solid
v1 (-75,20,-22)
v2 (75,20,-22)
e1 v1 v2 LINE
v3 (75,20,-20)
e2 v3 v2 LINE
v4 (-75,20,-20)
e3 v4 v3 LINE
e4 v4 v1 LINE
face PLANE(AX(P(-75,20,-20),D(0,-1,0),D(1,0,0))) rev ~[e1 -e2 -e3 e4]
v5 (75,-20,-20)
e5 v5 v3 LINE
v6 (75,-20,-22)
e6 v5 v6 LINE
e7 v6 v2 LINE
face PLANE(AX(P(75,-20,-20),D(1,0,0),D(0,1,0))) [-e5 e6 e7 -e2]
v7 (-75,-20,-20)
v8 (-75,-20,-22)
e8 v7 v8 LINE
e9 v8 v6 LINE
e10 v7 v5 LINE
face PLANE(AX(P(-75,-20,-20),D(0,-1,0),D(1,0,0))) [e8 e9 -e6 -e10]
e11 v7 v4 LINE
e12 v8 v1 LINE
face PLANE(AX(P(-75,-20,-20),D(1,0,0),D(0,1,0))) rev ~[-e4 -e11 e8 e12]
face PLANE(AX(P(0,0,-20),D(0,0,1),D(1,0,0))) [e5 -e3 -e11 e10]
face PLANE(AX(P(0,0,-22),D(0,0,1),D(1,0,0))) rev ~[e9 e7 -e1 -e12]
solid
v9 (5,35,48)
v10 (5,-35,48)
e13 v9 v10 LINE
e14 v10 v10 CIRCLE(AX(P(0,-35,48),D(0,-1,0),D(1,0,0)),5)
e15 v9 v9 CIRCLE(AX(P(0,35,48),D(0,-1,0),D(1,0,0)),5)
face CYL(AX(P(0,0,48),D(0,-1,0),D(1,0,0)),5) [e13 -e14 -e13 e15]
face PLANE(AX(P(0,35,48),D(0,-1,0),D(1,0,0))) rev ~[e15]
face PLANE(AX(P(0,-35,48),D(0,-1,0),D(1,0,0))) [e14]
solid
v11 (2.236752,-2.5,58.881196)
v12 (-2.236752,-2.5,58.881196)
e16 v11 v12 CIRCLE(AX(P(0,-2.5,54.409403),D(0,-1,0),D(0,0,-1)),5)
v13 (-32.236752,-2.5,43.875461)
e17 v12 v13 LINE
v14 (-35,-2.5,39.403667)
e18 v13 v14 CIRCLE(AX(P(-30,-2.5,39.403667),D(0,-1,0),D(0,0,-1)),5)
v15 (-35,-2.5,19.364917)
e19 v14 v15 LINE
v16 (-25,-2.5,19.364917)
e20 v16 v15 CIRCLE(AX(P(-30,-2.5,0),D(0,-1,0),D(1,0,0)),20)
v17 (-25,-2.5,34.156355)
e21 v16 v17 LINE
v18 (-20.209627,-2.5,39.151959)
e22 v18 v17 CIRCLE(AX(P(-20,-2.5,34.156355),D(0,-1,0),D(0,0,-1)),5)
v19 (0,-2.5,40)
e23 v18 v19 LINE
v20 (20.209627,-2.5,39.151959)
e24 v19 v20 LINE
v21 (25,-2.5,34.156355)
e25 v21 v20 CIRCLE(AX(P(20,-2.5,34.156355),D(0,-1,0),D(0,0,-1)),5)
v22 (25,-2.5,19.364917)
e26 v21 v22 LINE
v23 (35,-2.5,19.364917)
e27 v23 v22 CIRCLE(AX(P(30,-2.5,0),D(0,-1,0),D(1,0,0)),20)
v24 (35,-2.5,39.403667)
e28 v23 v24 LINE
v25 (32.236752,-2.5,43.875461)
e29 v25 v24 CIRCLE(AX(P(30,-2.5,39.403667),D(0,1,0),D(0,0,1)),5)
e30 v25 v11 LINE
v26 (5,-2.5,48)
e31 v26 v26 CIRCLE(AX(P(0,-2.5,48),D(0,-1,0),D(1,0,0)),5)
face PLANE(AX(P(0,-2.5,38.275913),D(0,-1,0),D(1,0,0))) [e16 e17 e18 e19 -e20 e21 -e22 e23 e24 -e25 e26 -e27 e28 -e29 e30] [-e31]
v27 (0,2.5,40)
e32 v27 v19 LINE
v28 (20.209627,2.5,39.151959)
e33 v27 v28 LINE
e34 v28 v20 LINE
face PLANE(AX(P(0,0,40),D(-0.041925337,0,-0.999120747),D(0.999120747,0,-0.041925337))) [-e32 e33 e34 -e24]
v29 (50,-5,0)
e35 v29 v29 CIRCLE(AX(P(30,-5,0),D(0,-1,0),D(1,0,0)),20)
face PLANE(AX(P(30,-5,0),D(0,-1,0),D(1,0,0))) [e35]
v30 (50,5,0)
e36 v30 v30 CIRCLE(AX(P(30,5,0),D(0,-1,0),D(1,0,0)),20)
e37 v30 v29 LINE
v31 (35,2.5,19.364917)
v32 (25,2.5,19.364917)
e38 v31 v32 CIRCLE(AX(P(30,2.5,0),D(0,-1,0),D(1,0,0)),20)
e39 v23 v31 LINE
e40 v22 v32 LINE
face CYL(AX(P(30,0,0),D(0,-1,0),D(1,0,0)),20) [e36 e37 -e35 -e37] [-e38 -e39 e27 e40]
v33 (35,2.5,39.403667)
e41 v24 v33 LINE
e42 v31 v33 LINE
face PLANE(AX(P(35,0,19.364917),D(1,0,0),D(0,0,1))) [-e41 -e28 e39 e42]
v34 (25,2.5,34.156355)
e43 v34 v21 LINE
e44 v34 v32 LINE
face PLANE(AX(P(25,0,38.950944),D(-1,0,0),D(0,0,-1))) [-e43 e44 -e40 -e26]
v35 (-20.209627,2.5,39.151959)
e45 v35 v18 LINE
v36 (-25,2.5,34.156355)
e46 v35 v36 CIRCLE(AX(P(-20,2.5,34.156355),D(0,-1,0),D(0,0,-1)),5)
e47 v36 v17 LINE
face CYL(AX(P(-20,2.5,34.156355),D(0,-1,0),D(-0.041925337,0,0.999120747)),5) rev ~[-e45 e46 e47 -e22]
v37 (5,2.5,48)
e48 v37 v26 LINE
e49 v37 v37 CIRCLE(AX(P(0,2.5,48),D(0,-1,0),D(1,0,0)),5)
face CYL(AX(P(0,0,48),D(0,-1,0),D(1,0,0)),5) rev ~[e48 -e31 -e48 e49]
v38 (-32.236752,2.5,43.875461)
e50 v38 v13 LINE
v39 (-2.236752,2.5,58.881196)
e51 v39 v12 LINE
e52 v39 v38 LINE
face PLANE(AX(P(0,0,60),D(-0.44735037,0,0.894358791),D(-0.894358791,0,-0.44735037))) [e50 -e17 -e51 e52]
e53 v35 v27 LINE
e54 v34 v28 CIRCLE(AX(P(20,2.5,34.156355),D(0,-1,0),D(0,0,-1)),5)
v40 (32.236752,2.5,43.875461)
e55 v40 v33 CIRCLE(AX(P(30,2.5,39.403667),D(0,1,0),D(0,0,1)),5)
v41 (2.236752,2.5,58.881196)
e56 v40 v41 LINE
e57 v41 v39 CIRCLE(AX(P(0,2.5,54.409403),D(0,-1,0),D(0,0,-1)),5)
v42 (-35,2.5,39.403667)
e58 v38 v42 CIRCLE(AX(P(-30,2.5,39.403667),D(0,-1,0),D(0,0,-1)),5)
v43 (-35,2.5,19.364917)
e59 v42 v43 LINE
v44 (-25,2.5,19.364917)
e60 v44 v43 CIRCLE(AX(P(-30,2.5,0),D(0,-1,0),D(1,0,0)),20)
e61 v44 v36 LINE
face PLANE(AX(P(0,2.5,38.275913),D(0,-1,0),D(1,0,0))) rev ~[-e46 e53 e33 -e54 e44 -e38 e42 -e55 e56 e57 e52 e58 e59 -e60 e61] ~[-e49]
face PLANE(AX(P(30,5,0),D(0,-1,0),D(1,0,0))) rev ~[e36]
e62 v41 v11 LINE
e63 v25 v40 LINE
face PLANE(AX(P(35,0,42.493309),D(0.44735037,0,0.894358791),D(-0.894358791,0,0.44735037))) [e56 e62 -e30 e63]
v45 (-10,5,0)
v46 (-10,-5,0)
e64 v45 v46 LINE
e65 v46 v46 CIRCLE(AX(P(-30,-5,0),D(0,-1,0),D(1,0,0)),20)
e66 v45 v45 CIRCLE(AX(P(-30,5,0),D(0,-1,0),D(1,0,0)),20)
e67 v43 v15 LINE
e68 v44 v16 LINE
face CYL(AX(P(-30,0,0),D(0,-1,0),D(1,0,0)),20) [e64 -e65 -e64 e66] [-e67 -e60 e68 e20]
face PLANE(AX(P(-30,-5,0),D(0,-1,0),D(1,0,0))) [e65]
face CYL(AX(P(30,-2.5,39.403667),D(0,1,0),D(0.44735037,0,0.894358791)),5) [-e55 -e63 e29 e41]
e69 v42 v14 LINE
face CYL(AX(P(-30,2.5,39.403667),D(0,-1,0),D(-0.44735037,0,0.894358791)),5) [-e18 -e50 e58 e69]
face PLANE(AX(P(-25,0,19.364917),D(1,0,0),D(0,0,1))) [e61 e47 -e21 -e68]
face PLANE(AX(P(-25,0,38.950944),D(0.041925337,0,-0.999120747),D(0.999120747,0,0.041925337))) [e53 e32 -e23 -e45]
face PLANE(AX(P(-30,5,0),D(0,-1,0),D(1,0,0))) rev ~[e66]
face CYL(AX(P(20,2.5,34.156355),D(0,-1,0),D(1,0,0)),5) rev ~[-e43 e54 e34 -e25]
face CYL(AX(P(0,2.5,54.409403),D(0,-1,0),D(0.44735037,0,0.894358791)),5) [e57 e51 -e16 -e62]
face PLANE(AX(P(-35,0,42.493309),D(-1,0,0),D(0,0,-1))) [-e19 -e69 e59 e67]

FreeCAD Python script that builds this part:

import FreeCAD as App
import Part
import Sketcher

V = App.Vector
Q = App.Units.Quantity


def edges_at(feature, points):
    """Names of the edges that pass closest to the given points."""
    edges = feature.Shape.Edges
    near = lambda p: min(range(len(edges)), key=lambda i: edges[i].distToShape(Part.Vertex(*p))[0])
    return sorted({f"Edge{near(p) + 1}" for p in points})

doc = App.newDocument("Part")
body = doc.addObject("PartDesign::Body", "Body")

# Sketch on XZ plane
sketch1 = body.newObject("Sketcher::SketchObject", "Sketch")
sketch1.AttachmentSupport = (doc.getObject("XZ_Plane"), [""])
sketch1.MapMode = "FlatFace"
sketch1.addGeometry(Part.Circle(V(-30, 0, 0), V(0, 0, 1), 20), False)
sketch1.addConstraint(Sketcher.Constraint("PointOnObject", 0, 3, -1))
sketch1.addConstraint(Sketcher.Constraint("Diameter", 0, Q("40 mm")))
sketch1.addConstraint(Sketcher.Constraint("DistanceX", 0, 3, -1, 1, Q("30 mm")))
pad1 = body.newObject("PartDesign::Pad", "Pad")
pad1.Profile = sketch1
pad1.Length = 10
pad1.Midplane = True
body2 = doc.addObject("PartDesign::Body", "Body001")

# Sketch on XZ plane
sketch2 = body2.newObject("Sketcher::SketchObject", "Sketch001")
sketch2.AttachmentSupport = (doc.getObject("XZ_Plane001"), [""])
sketch2.MapMode = "FlatFace"
sketch2.addGeometry(Part.Circle(V(30, 0, 0), V(0, 0, 1), 20), False)
sketch2.addConstraint(Sketcher.Constraint("PointOnObject", 0, 3, -1))
sketch2.addConstraint(Sketcher.Constraint("Diameter", 0, Q("40 mm")))
sketch2.addConstraint(Sketcher.Constraint("DistanceX", -1, 1, 0, 3, Q("30 mm")))
pad2 = body2.newObject("PartDesign::Pad", "Pad001")
pad2.Profile = sketch2
pad2.Length = 10
pad2.Midplane = True
body.AllowCompound = True
doc.recompute()

boolean = body.newObject("PartDesign::Boolean", "Boolean")
boolean.Type = "Fuse"
boolean.addObjects([body2])

# Sketch on XZ plane
sketch3 = body.newObject("Sketcher::SketchObject", "Sketch002")
sketch3.AttachmentSupport = (doc.getObject("XZ_Plane"), [""])
sketch3.MapMode = "FlatFace"
sketch3.addGeometry(Part.LineSegment(V(35, 42, 0), V(0, 60, 0)), False)
sketch3.addGeometry(Part.LineSegment(V(0, 60, 0), V(-35, 42, 0)), False)
sketch3.addGeometry(Part.LineSegment(V(-35, 42, 0), V(-35, 19, 0)), False)
sketch3.addGeometry(Part.LineSegment(V(-35, 19, 0), V(-25, 19, 0)), False)
sketch3.addGeometry(Part.LineSegment(V(-25, 19, 0), V(-25, 39, 0)), False)
sketch3.addGeometry(Part.LineSegment(V(-25, 39, 0), V(0, 40, 0)), False)
sketch3.addGeometry(Part.LineSegment(V(0, 40, 0), V(25, 39, 0)), False)
sketch3.addGeometry(Part.LineSegment(V(25, 39, 0), V(25, 19, 0)), False)
sketch3.addGeometry(Part.LineSegment(V(25, 19, 0), V(35, 19, 0)), False)
sketch3.addGeometry(Part.LineSegment(V(35, 19, 0), V(35, 42, 0)), False)
sketch3.addConstraint(Sketcher.Constraint("Coincident", 0, 2, 1, 1))
sketch3.addConstraint(Sketcher.Constraint("Coincident", 1, 2, 2, 1))
sketch3.addConstraint(Sketcher.Constraint("Coincident", 2, 2, 3, 1))
sketch3.addConstraint(Sketcher.Constraint("Coincident", 3, 2, 4, 1))
sketch3.addConstraint(Sketcher.Constraint("Coincident", 4, 2, 5, 1))
sketch3.addConstraint(Sketcher.Constraint("Coincident", 5, 2, 6, 1))
sketch3.addConstraint(Sketcher.Constraint("Coincident", 6, 2, 7, 1))
sketch3.addConstraint(Sketcher.Constraint("Coincident", 7, 2, 8, 1))
sketch3.addConstraint(Sketcher.Constraint("Coincident", 8, 2, 9, 1))
sketch3.addConstraint(Sketcher.Constraint("Coincident", 9, 2, 0, 1))
sketch3.addConstraint(Sketcher.Constraint("Vertical", 2))
sketch3.addConstraint(Sketcher.Constraint("Horizontal", 3))
sketch3.addConstraint(Sketcher.Constraint("Vertical", 4))
sketch3.addConstraint(Sketcher.Constraint("Vertical", 7))
sketch3.addConstraint(Sketcher.Constraint("Horizontal", 8))
sketch3.addConstraint(Sketcher.Constraint("Vertical", 9))
sketch3.addConstraint(Sketcher.Constraint("Symmetric", 4, 2, 6, 2, -2))
sketch3.addConstraint(Sketcher.Constraint("Symmetric", 2, 2, 8, 2, -2))
sketch3.addConstraint(Sketcher.Constraint("PointOnObject", 0, 2, -2))
sketch3.addConstraint(Sketcher.Constraint("PointOnObject", 5, 2, -2))
sketch3.addConstraint(Sketcher.Constraint("Horizontal", 1, 2, 9, 2))
sketch3.addConstraint(Sketcher.Constraint("DistanceX", 3, 1, 3, 2, Q("10 mm")))
sketch3.addConstraint(Sketcher.Constraint("DistanceY", -1, 1, 0, 2, Q("60 mm")))
sketch3.addConstraint(Sketcher.Constraint("DistanceX", 1, 2, -1, 1, Q("35 mm")))
sketch3.addConstraint(Sketcher.Constraint("DistanceY", -1, 1, 5, 2, Q("40 mm")))
sketch3.addConstraint(Sketcher.Constraint("Distance", 5, Q("25.022001 mm")))
sketch3.addConstraint(Sketcher.Constraint("DistanceY", 2, 2, 2, 1, Q("23.128392 mm")))
sketch3.addConstraint(Sketcher.Constraint("DistanceY", 4, 1, 4, 2, Q("19.586027 mm")))
pad3 = body.newObject("PartDesign::Pad", "Pad002")
pad3.Profile = sketch3
pad3.Length = 5
pad3.Midplane = True
doc.recompute()

fillet = body.newObject("PartDesign::Fillet", "Fillet")
fillet.Base = (pad3, edges_at(pad3, [
    (0, 0, 60),
    (-35, 0, 42.493),
    (35, 0, 42.493),
    (-25, 0, 38.951),
    (25, 0, 38.951),
]))
fillet.Radius = 5

# Sketch on XZ plane
sketch4 = body.newObject("Sketcher::SketchObject", "Sketch003")
sketch4.AttachmentSupport = (doc.getObject("XZ_Plane"), [""])
sketch4.MapMode = "FlatFace"
sketch4.addGeometry(Part.Circle(V(0, 48, 0), V(0, 0, 1), 5), False)
sketch4.addConstraint(Sketcher.Constraint("PointOnObject", 0, 3, -2))
sketch4.addConstraint(Sketcher.Constraint("Diameter", 0, Q("10 mm")))
sketch4.addConstraint(Sketcher.Constraint("DistanceY", -1, 1, 0, 3, Q("48 mm")))
pocket1 = body.newObject("PartDesign::Pocket", "Pocket")
pocket1.Profile = sketch4
pocket1.Length = 5
pocket1.Midplane = True
body3 = doc.addObject("PartDesign::Body", "Body002")

# Sketch on XY plane
sketch5 = body3.newObject("Sketcher::SketchObject", "Sketch004")
sketch5.AttachmentSupport = (doc.getObject("XY_Plane002"), [""])
sketch5.MapMode = "FlatFace"
sketch5.AttachmentOffset = App.Placement(V(0, 0, -20), App.Rotation())
sketch5.addGeometry(Part.LineSegment(V(-75, 20, 0), V(-75, -20, 0)), False)
sketch5.addGeometry(Part.LineSegment(V(-75, -20, 0), V(75, -20, 0)), False)
sketch5.addGeometry(Part.LineSegment(V(75, -20, 0), V(75, 20, 0)), False)
sketch5.addGeometry(Part.LineSegment(V(75, 20, 0), V(-75, 20, 0)), False)
sketch5.addConstraint(Sketcher.Constraint("Coincident", 0, 2, 1, 1))
sketch5.addConstraint(Sketcher.Constraint("Coincident", 1, 2, 2, 1))
sketch5.addConstraint(Sketcher.Constraint("Coincident", 2, 2, 3, 1))
sketch5.addConstraint(Sketcher.Constraint("Coincident", 3, 2, 0, 1))
sketch5.addConstraint(Sketcher.Constraint("Vertical", 0))
sketch5.addConstraint(Sketcher.Constraint("Horizontal", 1))
sketch5.addConstraint(Sketcher.Constraint("Vertical", 2))
sketch5.addConstraint(Sketcher.Constraint("Horizontal", 3))
sketch5.addConstraint(Sketcher.Constraint("Symmetric", 0, 2, 2, 2, -1, 1))
sketch5.addConstraint(Sketcher.Constraint("DistanceX", 1, 1, 1, 2, Q("150 mm")))
sketch5.addConstraint(Sketcher.Constraint("DistanceY", 0, 2, 0, 1, Q("40 mm")))
pad4 = body3.newObject("PartDesign::Pad", "Pad003")
pad4.Profile = sketch5
pad4.Length = 2
pad4.Reversed = True
body4 = doc.addObject("PartDesign::Body", "Body003")

# Sketch on XZ plane
sketch6 = body4.newObject("Sketcher::SketchObject", "Sketch005")
sketch6.AttachmentSupport = (doc.getObject("XZ_Plane003"), [""])
sketch6.MapMode = "FlatFace"
sketch6.addGeometry(Part.Circle(V(0, 48, 0), V(0, 0, 1), 5), False)
sketch6.addConstraint(Sketcher.Constraint("PointOnObject", 0, 3, -2))
sketch6.addConstraint(Sketcher.Constraint("Diameter", 0, Q("10 mm")))
sketch6.addConstraint(Sketcher.Constraint("DistanceY", -1, 1, 0, 3, Q("48 mm")))
pad5 = body4.newObject("PartDesign::Pad", "Pad004")
pad5.Profile = sketch6
pad5.Length = 70
pad5.Midplane = True

doc.recompute()
